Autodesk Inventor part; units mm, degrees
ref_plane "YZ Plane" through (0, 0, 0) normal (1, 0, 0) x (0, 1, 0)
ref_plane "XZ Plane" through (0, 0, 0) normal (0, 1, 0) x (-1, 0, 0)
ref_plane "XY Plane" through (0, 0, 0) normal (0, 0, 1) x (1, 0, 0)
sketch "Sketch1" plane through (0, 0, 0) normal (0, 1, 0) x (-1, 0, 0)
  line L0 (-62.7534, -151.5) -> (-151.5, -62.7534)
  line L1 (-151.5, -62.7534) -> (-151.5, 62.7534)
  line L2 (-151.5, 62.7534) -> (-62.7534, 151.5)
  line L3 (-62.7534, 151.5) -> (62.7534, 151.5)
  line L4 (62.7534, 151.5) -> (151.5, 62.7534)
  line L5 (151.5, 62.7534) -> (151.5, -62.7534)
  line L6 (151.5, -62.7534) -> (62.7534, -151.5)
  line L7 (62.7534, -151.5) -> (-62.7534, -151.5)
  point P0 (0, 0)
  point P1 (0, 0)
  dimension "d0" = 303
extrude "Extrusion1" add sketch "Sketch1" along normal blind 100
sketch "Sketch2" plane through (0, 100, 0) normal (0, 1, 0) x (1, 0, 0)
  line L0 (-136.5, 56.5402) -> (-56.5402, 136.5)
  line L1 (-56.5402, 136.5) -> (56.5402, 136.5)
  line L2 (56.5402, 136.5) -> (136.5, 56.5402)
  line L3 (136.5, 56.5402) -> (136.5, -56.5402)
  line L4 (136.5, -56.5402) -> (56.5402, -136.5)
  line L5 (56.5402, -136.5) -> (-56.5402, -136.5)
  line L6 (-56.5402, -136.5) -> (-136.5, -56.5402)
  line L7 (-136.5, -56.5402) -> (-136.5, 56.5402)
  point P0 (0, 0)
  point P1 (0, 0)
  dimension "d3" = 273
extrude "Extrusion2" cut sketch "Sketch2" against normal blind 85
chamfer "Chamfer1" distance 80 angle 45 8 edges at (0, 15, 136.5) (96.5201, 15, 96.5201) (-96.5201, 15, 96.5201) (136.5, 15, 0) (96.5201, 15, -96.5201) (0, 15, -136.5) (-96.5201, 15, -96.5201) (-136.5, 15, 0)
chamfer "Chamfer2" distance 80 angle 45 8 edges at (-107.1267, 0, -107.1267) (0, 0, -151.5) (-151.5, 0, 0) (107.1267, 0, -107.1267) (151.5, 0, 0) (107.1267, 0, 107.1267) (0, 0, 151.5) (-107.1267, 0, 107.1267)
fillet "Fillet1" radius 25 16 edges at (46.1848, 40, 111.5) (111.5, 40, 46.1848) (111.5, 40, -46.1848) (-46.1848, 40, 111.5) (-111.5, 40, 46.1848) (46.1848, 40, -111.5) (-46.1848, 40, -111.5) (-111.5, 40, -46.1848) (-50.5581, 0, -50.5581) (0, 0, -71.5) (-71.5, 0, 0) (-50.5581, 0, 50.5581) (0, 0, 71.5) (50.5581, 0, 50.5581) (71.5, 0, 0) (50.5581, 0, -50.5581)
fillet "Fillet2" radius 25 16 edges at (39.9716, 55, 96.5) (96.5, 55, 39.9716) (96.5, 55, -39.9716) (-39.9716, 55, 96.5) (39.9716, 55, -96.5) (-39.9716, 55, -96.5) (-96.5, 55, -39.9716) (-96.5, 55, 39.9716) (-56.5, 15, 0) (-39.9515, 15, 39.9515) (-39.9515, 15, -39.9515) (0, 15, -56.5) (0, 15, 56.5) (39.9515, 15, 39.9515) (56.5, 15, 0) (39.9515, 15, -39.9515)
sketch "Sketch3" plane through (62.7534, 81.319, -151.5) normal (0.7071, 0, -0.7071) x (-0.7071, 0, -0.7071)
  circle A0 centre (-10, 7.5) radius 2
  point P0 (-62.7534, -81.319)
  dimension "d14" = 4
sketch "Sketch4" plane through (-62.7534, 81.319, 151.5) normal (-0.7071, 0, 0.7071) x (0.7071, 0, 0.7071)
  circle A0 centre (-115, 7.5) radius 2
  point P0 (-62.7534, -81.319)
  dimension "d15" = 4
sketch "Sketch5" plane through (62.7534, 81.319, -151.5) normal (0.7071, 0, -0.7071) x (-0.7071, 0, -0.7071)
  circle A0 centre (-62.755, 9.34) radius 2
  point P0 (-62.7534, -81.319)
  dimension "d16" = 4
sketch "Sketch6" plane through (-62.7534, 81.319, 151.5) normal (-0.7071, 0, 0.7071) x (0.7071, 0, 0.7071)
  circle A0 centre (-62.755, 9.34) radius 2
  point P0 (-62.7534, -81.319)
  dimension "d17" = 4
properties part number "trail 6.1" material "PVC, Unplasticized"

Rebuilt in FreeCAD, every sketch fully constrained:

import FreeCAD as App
import Part
import Sketcher
from FreeCAD import Vector
Q = App.Units.Quantity


def edges_at(feature, points):
    """Names of the edges that pass closest to the given points."""
    edges = feature.Shape.Edges
    near = lambda p: min(range(len(edges)), key=lambda i: edges[i].distToShape(Part.Vertex(*p))[0])
    return sorted({f"Edge{near(p) + 1}" for p in points})


def add_polygon(sketch, points):
    """Adds a closed chain of lines whose ends are joined by coincident constraints."""
    first, n = sketch.GeometryCount, len(points)
    for a, b in zip(points, points[1:] + points[:1]):
        sketch.addGeometry(Part.LineSegment(App.Vector(*a, 0), App.Vector(*b, 0)), False)
    for i in range(n):
        sketch.addConstraint(Sketcher.Constraint("Coincident", first + i, 2, first + (i + 1) % n, 1))

doc = App.newDocument("Part")
params = doc.addObject("Spreadsheet::Sheet", "Params")
for row, (alias, value) in enumerate([
    ("pad1_length", "100 mm"),
    ("pocket1_length", "85 mm"),
    ("chamfer_size", "80 mm"),
    ("chamfer2_size", "80 mm"),
    ("fillet_radius", "25 mm"),
    ("fillet2_radius", "25 mm"),
], start=1):
    params.set(f"A{row}", alias)
    params.set(f"B{row}", "=" + value)
    params.setAlias(f"B{row}", alias)

body = doc.addObject("PartDesign::Body", "Body")

# Sketch on XZ plane
sketch1 = doc.addObject("Sketcher::SketchObject", "Sketch")
body.addObject(sketch1)
sketch1.AttachmentSupport = (doc.XZ_Plane, [""])
sketch1.MapMode = "FlatFace"
add_polygon(sketch1, [(152, -63), (63, -152), (-63, -152), (-152, -63), (-152, 63), (-63, 152), (63, 152), (152, 63)])  # lines 0-7
sketch1.addConstraint([
    Sketcher.Constraint("Horizontal", 1),
    Sketcher.Constraint("Vertical", 3),
    Sketcher.Constraint("Horizontal", 5),
    Sketcher.Constraint("Vertical", 7),
    Sketcher.Constraint("Symmetric", 0, 2, 4, 2, -1, 1),
    Sketcher.Constraint("Symmetric", 2, 2, 6, 2, -1, 1),
    Sketcher.Constraint("Perpendicular", 0, 2),
    Sketcher.Constraint("Perpendicular", 2, 4),
    Sketcher.Constraint("Perpendicular", 4, 6),
    Sketcher.Constraint("Horizontal", 3, 2, 6, 2),
    Sketcher.Constraint("Vertical", 1, 2, 4, 2),
    Sketcher.Constraint("Equal", 5, 3),
    Sketcher.Constraint("DistanceY", 1, 2, 4, 2, Q("303 mm")),
    Sketcher.Constraint("DistanceX", 1, 2, 1, 1, Q("125.5068 mm")),
])
pad1 = doc.addObject("PartDesign::Pad", "Pad")
body.addObject(pad1)
pad1.Profile = sketch1
pad1.setExpression("Length", "Params.pad1_length")
pad1.Reversed = True

# Sketch on XZ plane
sketch2 = doc.addObject("Sketcher::SketchObject", "Sketch001")
body.addObject(sketch2)
sketch2.AttachmentSupport = (doc.XZ_Plane, [""])
sketch2.MapMode = "FlatFace"
sketch2.AttachmentOffset = App.Placement(Vector(0, 0, -100), App.Rotation())
add_polygon(sketch2, [(-57, -136), (-136, -57), (-136, 57), (-57, 136), (57, 136), (136, 57), (136, -57), (57, -136)])  # lines 0-7
sketch2.addConstraint([
    Sketcher.Constraint("Vertical", 1),
    Sketcher.Constraint("Horizontal", 3),
    Sketcher.Constraint("Vertical", 5),
    Sketcher.Constraint("Horizontal", 7),
    Sketcher.Constraint("Symmetric", 0, 2, 4, 2, -1, 1),
    Sketcher.Constraint("Symmetric", 2, 2, 6, 2, -1, 1),
    Sketcher.Constraint("Perpendicular", 0, 2),
    Sketcher.Constraint("Perpendicular", 2, 4),
    Sketcher.Constraint("Perpendicular", 4, 6),
    Sketcher.Constraint("Horizontal", 1, 2, 4, 2),
    Sketcher.Constraint("Vertical", 3, 2, 6, 2),
    Sketcher.Constraint("Equal", 7, 1),
    Sketcher.Constraint("DistanceX", 1, 2, 4, 2, Q("273 mm")),
    Sketcher.Constraint("DistanceX", 3, 1, 3, 2, Q("113.0804 mm")),
])
pocket1 = doc.addObject("PartDesign::Pocket", "Pocket")
body.addObject(pocket1)
pocket1.Profile = sketch2
pocket1.setExpression("Length", "Params.pocket1_length")
pocket1.Reversed = True
doc.recompute()

chamfer = doc.addObject("PartDesign::Chamfer", "Chamfer")
body.addObject(chamfer)
chamfer.Base = (pocket1, edges_at(pocket1, [
    (0, 15, 136.5),
    (96.52, 15, 96.52),
    (-96.52, 15, 96.52),
    (136.5, 15, 0),
    (96.52, 15, -96.52),
    (0, 15, -136.5),
    (-96.52, 15, -96.52),
    (-136.5, 15, 0),
]))
chamfer.setExpression("Size", "Params.chamfer_size")
doc.recompute()

chamfer2 = doc.addObject("PartDesign::Chamfer", "Chamfer001")
body.addObject(chamfer2)
chamfer2.Base = (chamfer, edges_at(chamfer, [
    (-107.127, 0, -107.127),
    (0, 0, -151.5),
    (-151.5, 0, 0),
    (107.127, 0, -107.127),
    (151.5, 0, 0),
    (107.127, 0, 107.127),
    (0, 0, 151.5),
    (-107.127, 0, 107.127),
]))
chamfer2.setExpression("Size", "Params.chamfer2_size")
doc.recompute()

fillet = doc.addObject("PartDesign::Fillet", "Fillet")
body.addObject(fillet)
fillet.Base = (chamfer2, edges_at(chamfer2, [
    (46.185, 40, 111.5),
    (111.5, 40, 46.185),
    (111.5, 40, -46.185),
    (-46.185, 40, 111.5),
    (-111.5, 40, 46.185),
    (46.185, 40, -111.5),
    (-46.185, 40, -111.5),
    (-111.5, 40, -46.185),
    (-50.558, 0, -50.558),
    (0, 0, -71.5),
    (-71.5, 0, 0),
    (-50.558, 0, 50.558),
    (0, 0, 71.5),
    (50.558, 0, 50.558),
    (71.5, 0, 0),
    (50.558, 0, -50.558),
]))
fillet.setExpression("Radius", "Params.fillet_radius")
doc.recompute()

fillet2 = doc.addObject("PartDesign::Fillet", "Fillet001")
body.addObject(fillet2)
fillet2.Base = (fillet, edges_at(fillet, [
    (39.972, 55, 96.5),
    (96.5, 55, 39.972),
    (96.5, 55, -39.972),
    (-39.972, 55, 96.5),
    (39.972, 55, -96.5),
    (-39.972, 55, -96.5),
    (-96.5, 55, -39.972),
    (-96.5, 55, 39.972),
    (-56.5, 15, 0),
    (-39.952, 15, 39.952),
    (-39.952, 15, -39.952),
    (0, 15, -56.5),
    (0, 15, 56.5),
    (39.952, 15, 39.952),
    (56.5, 15, 0),
    (39.952, 15, -39.952),
]))
fillet2.setExpression("Radius", "Params.fillet2_radius")

doc.recompute()
